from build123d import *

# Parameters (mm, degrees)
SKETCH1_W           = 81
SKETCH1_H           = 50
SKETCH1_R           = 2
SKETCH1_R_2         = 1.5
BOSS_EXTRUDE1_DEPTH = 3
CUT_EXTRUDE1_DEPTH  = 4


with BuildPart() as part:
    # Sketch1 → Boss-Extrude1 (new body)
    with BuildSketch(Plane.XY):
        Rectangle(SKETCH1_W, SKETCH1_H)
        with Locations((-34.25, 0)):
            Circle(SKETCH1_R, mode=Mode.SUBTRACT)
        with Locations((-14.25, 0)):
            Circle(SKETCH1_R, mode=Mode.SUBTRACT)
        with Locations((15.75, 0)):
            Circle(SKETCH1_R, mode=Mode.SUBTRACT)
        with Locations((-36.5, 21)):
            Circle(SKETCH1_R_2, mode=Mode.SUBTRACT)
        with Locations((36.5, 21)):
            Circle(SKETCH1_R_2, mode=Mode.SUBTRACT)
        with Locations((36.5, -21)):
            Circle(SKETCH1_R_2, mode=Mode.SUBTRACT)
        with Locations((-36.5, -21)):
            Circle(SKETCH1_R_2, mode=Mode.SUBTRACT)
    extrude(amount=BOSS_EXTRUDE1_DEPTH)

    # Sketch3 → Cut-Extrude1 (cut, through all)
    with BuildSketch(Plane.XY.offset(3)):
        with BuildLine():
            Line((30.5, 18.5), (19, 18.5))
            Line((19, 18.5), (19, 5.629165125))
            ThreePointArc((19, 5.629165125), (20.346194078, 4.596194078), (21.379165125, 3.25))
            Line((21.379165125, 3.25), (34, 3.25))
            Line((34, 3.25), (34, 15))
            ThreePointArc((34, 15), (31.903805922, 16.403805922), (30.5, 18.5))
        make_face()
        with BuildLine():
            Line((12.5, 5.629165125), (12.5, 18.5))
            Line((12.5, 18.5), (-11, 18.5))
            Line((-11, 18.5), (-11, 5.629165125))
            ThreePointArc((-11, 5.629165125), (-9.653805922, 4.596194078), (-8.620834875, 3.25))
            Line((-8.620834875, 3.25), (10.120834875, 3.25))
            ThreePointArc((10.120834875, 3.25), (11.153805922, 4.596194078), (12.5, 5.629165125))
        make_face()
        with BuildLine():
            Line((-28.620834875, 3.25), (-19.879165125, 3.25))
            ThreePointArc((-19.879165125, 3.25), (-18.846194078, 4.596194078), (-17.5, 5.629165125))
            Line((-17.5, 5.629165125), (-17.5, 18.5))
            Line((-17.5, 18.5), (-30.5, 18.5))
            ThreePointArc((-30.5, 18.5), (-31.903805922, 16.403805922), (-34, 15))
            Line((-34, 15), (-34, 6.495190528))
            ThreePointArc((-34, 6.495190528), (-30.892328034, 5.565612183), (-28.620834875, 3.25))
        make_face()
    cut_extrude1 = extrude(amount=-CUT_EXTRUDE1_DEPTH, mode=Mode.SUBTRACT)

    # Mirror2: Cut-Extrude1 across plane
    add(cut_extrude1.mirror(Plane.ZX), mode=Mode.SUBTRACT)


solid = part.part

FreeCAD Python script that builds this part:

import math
import FreeCAD as App
import Part
import Sketcher
from FreeCAD import Vector
Q = App.Units.Quantity


def add_polygon(sketch, points):
    """Adds a closed chain of lines whose ends are joined by coincident constraints."""
    first, n = sketch.GeometryCount, len(points)
    for a, b in zip(points, points[1:] + points[:1]):
        sketch.addGeometry(Part.LineSegment(App.Vector(*a, 0), App.Vector(*b, 0)), False)
    for i in range(n):
        sketch.addConstraint(Sketcher.Constraint("Coincident", first + i, 2, first + (i + 1) % n, 1))

doc = App.newDocument("Part")
params = doc.addObject("Spreadsheet::Sheet", "Params")
for row, (alias, value) in enumerate([
    ("sketch1_diameter", "3 mm"),
    ("sketch1_diameter2", "4 mm"),
    ("sketch1_width", "81 mm"),
    ("sketch1_height", "50 mm"),
    ("pad1_length", "3 mm"),
    ("sketch2_radius", "6.5 mm"),
    ("sketch2_width", "13 mm"),
    ("sketch2_width2", "11.5 mm"),
    ("sketch2_width3", "23.5 mm"),
    ("sketch2_height", "11.75 mm"),
], start=1):
    params.set(f"A{row}", alias)
    params.set(f"B{row}", "=" + value)
    params.setAlias(f"B{row}", alias)

body = doc.addObject("PartDesign::Body", "Body")

# Sketch on XY plane
sketch1 = body.newObject("Sketcher::SketchObject", "Sketch")
sketch1.AttachmentSupport = (doc.getObject("XY_Plane"), [""])
sketch1.MapMode = "FlatFace"
add_polygon(sketch1, [(-40.5, 25), (-40.5, -25), (40.5, -25), (40.5, 25)])  # lines 0-3
sketch1.addGeometry(Part.Circle(Vector(-36.5, -21, 0), Vector(0, 0, 1), 1.5), False)  # 4
sketch1.addGeometry(Part.Circle(Vector(36.5, -21, 0), Vector(0, 0, 1), 1.5), False)  # 5
sketch1.addGeometry(Part.Circle(Vector(-34.25, 0, 0), Vector(0, 0, 1), 2), False)  # 6
sketch1.addGeometry(Part.Circle(Vector(-14.25, 0, 0), Vector(0, 0, 1), 2), False)  # 7
sketch1.addGeometry(Part.Circle(Vector(-36.5, 21, 0), Vector(0, 0, 1), 1.5), False)  # 8
sketch1.addGeometry(Part.Circle(Vector(15.75, 0, 0), Vector(0, 0, 1), 2), False)  # 9
sketch1.addGeometry(Part.Circle(Vector(36.5, 21, 0), Vector(0, 0, 1), 1.5), False)  # 10
sketch1.addConstraint([
    Sketcher.Constraint("Vertical", 0),
    Sketcher.Constraint("Horizontal", 1),
    Sketcher.Constraint("Vertical", 2),
    Sketcher.Constraint("Horizontal", 3),
    Sketcher.Constraint("Equal", 4, 5),
    Sketcher.Constraint("Equal", 6, 7),
    Sketcher.Constraint("Equal", 5, 8),
    Sketcher.Constraint("Equal", 7, 9),
    Sketcher.Constraint("Equal", 8, 10),
    Sketcher.Constraint("Symmetric", 5, 3, 8, 3, -1, 1),
    Sketcher.Constraint("Symmetric", 4, 3, 10, 3, -1, 1),
    Sketcher.Constraint("Symmetric", 0, 2, 2, 2, -1, 1),
    Sketcher.Constraint("Symmetric", 4, 3, 5, 3, -2),
    Sketcher.Constraint("PointOnObject", 6, 3, -1),
    Sketcher.Constraint("PointOnObject", 7, 3, -1),
    Sketcher.Constraint("PointOnObject", 9, 3, -1),
    Sketcher.Constraint("Diameter", 4, Q("3 mm")),
    Sketcher.Constraint("Diameter", 6, Q("4 mm")),
    Sketcher.Constraint("DistanceX", 1, 1, 1, 2, Q("81 mm")),
    Sketcher.Constraint("DistanceY", 0, 2, 0, 1, Q("50 mm")),
    Sketcher.Constraint("DistanceY", 4, 3, -1, 1, Q("21 mm")),
    Sketcher.Constraint("DistanceX", 4, 3, 5, 3, Q("73 mm")),
    Sketcher.Constraint("DistanceX", 6, 3, 7, 3, Q("20 mm")),
    Sketcher.Constraint("DistanceX", 7, 3, 9, 3, Q("30 mm")),
    Sketcher.Constraint("DistanceX", 6, 3, -1, 1, Q("34.25 mm")),
])
sketch1.setExpression("Constraints[20]", "Params.sketch1_diameter")
sketch1.setExpression("Constraints[21]", "Params.sketch1_diameter2")
sketch1.setExpression("Constraints[22]", "Params.sketch1_width")
sketch1.setExpression("Constraints[23]", "Params.sketch1_height")
pad1 = body.newObject("PartDesign::Pad", "Pad")
pad1.Profile = sketch1
pad1.setExpression("Length", "Params.pad1_length")

# Sketch on XY plane
sketch2 = body.newObject("Sketcher::SketchObject", "Sketch001")
sketch2.AttachmentSupport = (doc.getObject("XY_Plane"), [""])
sketch2.MapMode = "FlatFace"
sketch2.AttachmentOffset = App.Placement(Vector(0, 0, 3), App.Rotation())
sketch2.addGeometry([
    Part.LineSegment(Vector(30.5, 18.5, 0), Vector(19, 18.5, 0)),  # 0
    Part.LineSegment(Vector(19, 18.5, 0), Vector(19, 5.629165, 0)),  # 1
    Part.ArcOfCircle(Part.Circle(Vector(15.75, 0, 0), Vector(0, 0, 1), 6.5), math.radians(30), math.radians(60)),  # 2
    Part.LineSegment(Vector(21.379165, 3.25, 0), Vector(34, 3.25, 0)),  # 3
    Part.LineSegment(Vector(34, 3.25, 0), Vector(34, 15, 0)),  # 4
    Part.ArcOfCircle(Part.Circle(Vector(36.5, 21, 0), Vector(0, 0, 1), 6.5), math.radians(-157.380135), math.radians(-112.619865)),  # 5
    Part.LineSegment(Vector(12.5, 5.629165, 0), Vector(12.5, 18.5, 0)),  # 6
    Part.LineSegment(Vector(12.5, 18.5, 0), Vector(-11, 18.5, 0)),  # 7
    Part.LineSegment(Vector(-11, 18.5, 0), Vector(-11, 5.629165, 0)),  # 8
    Part.ArcOfCircle(Part.Circle(Vector(-14.25, 0, 0), Vector(0, 0, 1), 6.5), math.radians(30), math.radians(60)),  # 9
    Part.LineSegment(Vector(-8.620835, 3.25, 0), Vector(10.120835, 3.25, 0)),  # 10
    Part.ArcOfCircle(Part.Circle(Vector(15.75, 0, 0), Vector(0, 0, 1), 6.5), math.radians(120), math.radians(150)),  # 11
    Part.LineSegment(Vector(-28.620835, 3.25, 0), Vector(-19.879165, 3.25, 0)),  # 12
    Part.ArcOfCircle(Part.Circle(Vector(-14.25, 0, 0), Vector(0, 0, 1), 6.5), math.radians(120), math.radians(150)),  # 13
    Part.LineSegment(Vector(-17.5, 5.629165, 0), Vector(-17.5, 18.5, 0)),  # 14
    Part.LineSegment(Vector(-17.5, 18.5, 0), Vector(-30.5, 18.5, 0)),  # 15
    Part.ArcOfCircle(Part.Circle(Vector(-36.5, 21, 0), Vector(0, 0, 1), 6.5), math.radians(-67.380135), math.radians(-22.619865)),  # 16
    Part.LineSegment(Vector(-34, 15, 0), Vector(-34, 6.495191, 0)),  # 17
    Part.ArcOfCircle(Part.Circle(Vector(-34.25, 0, 0), Vector(0, 0, 1), 6.5), math.radians(30), math.radians(87.795773)),  # 18
], False)
sketch2.addConstraint([
    Sketcher.Constraint("Coincident", 0, 2, 1, 1),
    Sketcher.Constraint("Coincident", 1, 2, 2, 2),
    Sketcher.Constraint("Coincident", 2, 1, 3, 1),
    Sketcher.Constraint("Coincident", 3, 2, 4, 1),
    Sketcher.Constraint("Coincident", 4, 2, 5, 2),
    Sketcher.Constraint("Coincident", 5, 1, 0, 1),
    Sketcher.Constraint("Coincident", 6, 2, 7, 1),
    Sketcher.Constraint("Coincident", 7, 2, 8, 1),
    Sketcher.Constraint("Coincident", 8, 2, 9, 2),
    Sketcher.Constraint("Coincident", 9, 1, 10, 1),
    Sketcher.Constraint("Coincident", 10, 2, 11, 2),
    Sketcher.Constraint("Coincident", 11, 1, 6, 1),
    Sketcher.Constraint("Coincident", 12, 2, 13, 2),
    Sketcher.Constraint("Coincident", 13, 1, 14, 1),
    Sketcher.Constraint("Coincident", 14, 2, 15, 1),
    Sketcher.Constraint("Coincident", 15, 2, 16, 2),
    Sketcher.Constraint("Coincident", 16, 1, 17, 1),
    Sketcher.Constraint("Coincident", 17, 2, 18, 2),
    Sketcher.Constraint("Coincident", 18, 1, 12, 1),
    Sketcher.Constraint("Horizontal", 0),
    Sketcher.Constraint("Vertical", 1),
    Sketcher.Constraint("Horizontal", 3),
    Sketcher.Constraint("Vertical", 4),
    Sketcher.Constraint("Vertical", 6),
    Sketcher.Constraint("Horizontal", 7),
    Sketcher.Constraint("Vertical", 8),
    Sketcher.Constraint("Horizontal", 10),
    Sketcher.Constraint("Horizontal", 12),
    Sketcher.Constraint("Vertical", 14),
    Sketcher.Constraint("Horizontal", 15),
    Sketcher.Constraint("Vertical", 17),
    Sketcher.Constraint("Coincident", 11, 3, 2, 3),
    Sketcher.Constraint("Coincident", 13, 3, 9, 3),
    Sketcher.Constraint("Equal", 2, 5),
    Sketcher.Constraint("Equal", 5, 9),
    Sketcher.Constraint("Equal", 9, 11),
    Sketcher.Constraint("Equal", 11, 13),
    Sketcher.Constraint("Equal", 13, 16),
    Sketcher.Constraint("Equal", 16, 18),
    Sketcher.Constraint("Symmetric", 5, 3, 16, 3, -2),
    Sketcher.Constraint("PointOnObject", 2, 3, -1),
    Sketcher.Constraint("PointOnObject", 9, 3, -1),
    Sketcher.Constraint("PointOnObject", 18, 3, -1),
    Sketcher.Constraint("Horizontal", 5, 1, 6, 2),
    Sketcher.Constraint("Horizontal", 1, 2, 8, 2),
    Sketcher.Constraint("Horizontal", 3, 2, 9, 1),
    Sketcher.Constraint("Horizontal", 8, 2, 11, 1),
    Sketcher.Constraint("Horizontal", 10, 2, 12, 2),
    Sketcher.Constraint("Horizontal", 11, 1, 13, 1),
    Sketcher.Constraint("Horizontal", 7, 2, 14, 2),
    Sketcher.Constraint("Horizontal", 4, 2, 16, 1),
    Sketcher.Constraint("Radius", 2, Q("6.5 mm")),
    Sketcher.Constraint("DistanceX", 15, 2, 15, 1, Q("13 mm")),
    Sketcher.Constraint("DistanceX", 0, 2, 0, 1, Q("11.5 mm")),
    Sketcher.Constraint("DistanceX", 7, 2, 7, 1, Q("23.5 mm")),
    Sketcher.Constraint("DistanceY", -1, 1, 5, 3, Q("21 mm")),
    Sketcher.Constraint("DistanceX", -1, 1, 0, 2, Q("19 mm")),
    Sketcher.Constraint("DistanceX", -1, 1, 3, 2, Q("34 mm")),
    Sketcher.Constraint("DistanceY", -1, 1, 4, 2, Q("15 mm")),
    Sketcher.Constraint("DistanceX", 18, 3, 13, 3, Q("20 mm")),
    Sketcher.Constraint("DistanceY", 4, 1, 4, 2, Q("11.75 mm")),
])
sketch2.setExpression("Constraints[51]", "Params.sketch2_radius")
sketch2.setExpression("Constraints[52]", "Params.sketch2_width")
sketch2.setExpression("Constraints[53]", "Params.sketch2_width2")
sketch2.setExpression("Constraints[54]", "Params.sketch2_width3")
sketch2.setExpression("Constraints[60]", "Params.sketch2_height")
pocket1 = body.newObject("PartDesign::Pocket", "Pocket")
pocket1.Profile = sketch2
pocket1.Type = "ThroughAll"
doc.recompute()

mirrored = body.newObject("PartDesign::Mirrored", "Mirrored")
mirrored.Originals = [pocket1]
mirrored.MirrorPlane = (doc.getObject("XZ_Plane"), [""])
body.Tip = mirrored

doc.recompute()
